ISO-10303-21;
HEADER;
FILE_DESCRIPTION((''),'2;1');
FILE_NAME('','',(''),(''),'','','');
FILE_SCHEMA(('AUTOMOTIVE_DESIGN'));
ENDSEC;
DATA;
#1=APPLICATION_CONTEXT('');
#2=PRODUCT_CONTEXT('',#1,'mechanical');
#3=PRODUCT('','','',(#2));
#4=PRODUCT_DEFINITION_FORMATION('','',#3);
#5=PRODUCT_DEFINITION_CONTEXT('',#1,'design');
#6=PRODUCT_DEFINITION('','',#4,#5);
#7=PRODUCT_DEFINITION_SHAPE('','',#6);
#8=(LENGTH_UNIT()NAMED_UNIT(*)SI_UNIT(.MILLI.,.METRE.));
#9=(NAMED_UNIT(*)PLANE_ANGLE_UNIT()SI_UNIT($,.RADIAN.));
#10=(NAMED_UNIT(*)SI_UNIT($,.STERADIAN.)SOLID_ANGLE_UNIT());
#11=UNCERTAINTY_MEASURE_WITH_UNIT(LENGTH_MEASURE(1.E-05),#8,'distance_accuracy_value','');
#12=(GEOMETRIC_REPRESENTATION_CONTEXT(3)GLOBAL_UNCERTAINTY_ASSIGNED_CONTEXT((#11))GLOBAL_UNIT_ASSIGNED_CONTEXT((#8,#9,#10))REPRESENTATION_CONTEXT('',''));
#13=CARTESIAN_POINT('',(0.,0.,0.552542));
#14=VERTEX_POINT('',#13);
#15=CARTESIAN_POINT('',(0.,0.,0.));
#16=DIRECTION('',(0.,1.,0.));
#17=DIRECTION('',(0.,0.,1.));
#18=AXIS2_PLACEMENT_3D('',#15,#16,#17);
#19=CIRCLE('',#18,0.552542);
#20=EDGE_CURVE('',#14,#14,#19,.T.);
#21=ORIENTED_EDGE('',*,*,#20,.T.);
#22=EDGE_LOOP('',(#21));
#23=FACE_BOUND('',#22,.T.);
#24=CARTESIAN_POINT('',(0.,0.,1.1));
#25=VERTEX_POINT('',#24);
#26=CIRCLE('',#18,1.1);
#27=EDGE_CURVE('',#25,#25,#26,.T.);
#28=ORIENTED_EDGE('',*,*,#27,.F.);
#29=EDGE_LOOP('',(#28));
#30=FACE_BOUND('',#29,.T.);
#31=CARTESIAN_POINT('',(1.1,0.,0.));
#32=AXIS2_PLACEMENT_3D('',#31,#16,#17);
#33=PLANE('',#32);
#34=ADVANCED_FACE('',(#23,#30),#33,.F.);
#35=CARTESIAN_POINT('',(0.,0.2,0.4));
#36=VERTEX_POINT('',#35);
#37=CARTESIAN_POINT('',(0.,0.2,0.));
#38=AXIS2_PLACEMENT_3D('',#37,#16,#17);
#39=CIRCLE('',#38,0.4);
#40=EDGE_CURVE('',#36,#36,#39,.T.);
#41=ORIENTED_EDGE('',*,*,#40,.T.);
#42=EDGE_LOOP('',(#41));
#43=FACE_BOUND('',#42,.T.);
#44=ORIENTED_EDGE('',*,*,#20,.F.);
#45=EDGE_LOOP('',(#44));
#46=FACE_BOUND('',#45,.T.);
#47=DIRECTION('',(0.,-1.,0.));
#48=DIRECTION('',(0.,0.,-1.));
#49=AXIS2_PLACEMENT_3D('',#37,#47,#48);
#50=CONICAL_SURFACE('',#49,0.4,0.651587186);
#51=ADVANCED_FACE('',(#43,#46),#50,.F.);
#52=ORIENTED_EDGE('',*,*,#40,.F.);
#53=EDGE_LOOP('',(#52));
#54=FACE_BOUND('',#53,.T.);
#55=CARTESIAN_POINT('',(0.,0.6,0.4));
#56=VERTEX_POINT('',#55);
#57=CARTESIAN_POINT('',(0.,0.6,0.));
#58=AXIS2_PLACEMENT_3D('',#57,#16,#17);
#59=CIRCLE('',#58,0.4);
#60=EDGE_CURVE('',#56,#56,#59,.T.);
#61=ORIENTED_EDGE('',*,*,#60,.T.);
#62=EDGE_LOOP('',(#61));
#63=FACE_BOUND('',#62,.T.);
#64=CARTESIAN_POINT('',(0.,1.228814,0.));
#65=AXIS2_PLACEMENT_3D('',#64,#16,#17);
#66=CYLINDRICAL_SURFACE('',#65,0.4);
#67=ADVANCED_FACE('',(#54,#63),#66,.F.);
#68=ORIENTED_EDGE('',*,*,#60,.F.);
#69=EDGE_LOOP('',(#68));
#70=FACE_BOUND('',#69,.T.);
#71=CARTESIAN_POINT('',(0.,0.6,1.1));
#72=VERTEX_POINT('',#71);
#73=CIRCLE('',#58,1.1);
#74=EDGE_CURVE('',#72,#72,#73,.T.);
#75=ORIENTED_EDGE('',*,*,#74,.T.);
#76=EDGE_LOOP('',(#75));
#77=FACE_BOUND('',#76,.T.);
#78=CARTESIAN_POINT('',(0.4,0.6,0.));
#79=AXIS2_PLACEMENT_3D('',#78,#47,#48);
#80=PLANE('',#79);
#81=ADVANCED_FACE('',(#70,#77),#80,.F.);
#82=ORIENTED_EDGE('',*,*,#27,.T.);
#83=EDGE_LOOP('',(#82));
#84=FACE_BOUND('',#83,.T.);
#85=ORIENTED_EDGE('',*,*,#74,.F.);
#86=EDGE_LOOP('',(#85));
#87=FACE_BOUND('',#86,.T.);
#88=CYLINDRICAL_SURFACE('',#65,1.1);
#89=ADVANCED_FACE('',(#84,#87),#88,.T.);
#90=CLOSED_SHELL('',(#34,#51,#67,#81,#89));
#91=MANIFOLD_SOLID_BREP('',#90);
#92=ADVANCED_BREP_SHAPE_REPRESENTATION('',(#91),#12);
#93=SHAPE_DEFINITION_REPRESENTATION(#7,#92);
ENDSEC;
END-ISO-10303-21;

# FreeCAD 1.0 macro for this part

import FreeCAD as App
import Part
import Sketcher
from FreeCAD import Vector

doc = App.newDocument("Part")
body = doc.addObject("PartDesign::Body", "Body")

sketch1 = doc.addObject("Sketcher::SketchObject", "Sketch")
body.addObject(sketch1)
sketch1.AttachmentSupport = (doc.XY_Plane, [""])
sketch1.MapMode = "FlatFace"
sketch1.addGeometry([
    Part.LineSegment(Vector(1.1, 0.6, 0), Vector(0.4, 0.6, 0)),
    Part.LineSegment(Vector(0.4, 0.6, 0), Vector(0.4, 0.2, 0)),
    Part.LineSegment(Vector(0.4, 0.2, 0), Vector(0.55, 0, 0)),
    Part.LineSegment(Vector(0.55, 0, 0), Vector(1.1, 0, 0)),
    Part.LineSegment(Vector(1.1, 0, 0), Vector(1.1, 0.6, 0)),
], False)
sketch1.addConstraint([
    Sketcher.Constraint("Coincident", 0, 2, 1, 1),
    Sketcher.Constraint("Coincident", 1, 2, 2, 1),
    Sketcher.Constraint("Coincident", 2, 2, 3, 1),
    Sketcher.Constraint("Coincident", 3, 2, 4, 1),
    Sketcher.Constraint("Coincident", 4, 2, 0, 1),
    Sketcher.Constraint("Horizontal", 0),
    Sketcher.Constraint("Vertical", 1),
    Sketcher.Constraint("Horizontal", 3),
    Sketcher.Constraint("Vertical", 4),
    Sketcher.Constraint("PointOnObject", 2, 2, -1),
    Sketcher.Constraint("DistanceX", 0, 2, 0, 1, 0.7),
    Sketcher.Constraint("DistanceY", 1, 2, 1, 1, 0.4),
    Sketcher.Constraint("DistanceY", 4, 1, 4, 2, 0.6),
    Sketcher.Constraint("DistanceX", -1, 1, 0, 2, 0.4),
    Sketcher.Constraint("DistanceX", 3, 1, 3, 2, 0.547458),
])
revolution = doc.addObject("PartDesign::Revolution", "Revolution")
body.addObject(revolution)
revolution.Profile = sketch1
revolution.ReferenceAxis = (sketch1, ["V_Axis"])
revolution.Angle = 360

doc.recompute()
